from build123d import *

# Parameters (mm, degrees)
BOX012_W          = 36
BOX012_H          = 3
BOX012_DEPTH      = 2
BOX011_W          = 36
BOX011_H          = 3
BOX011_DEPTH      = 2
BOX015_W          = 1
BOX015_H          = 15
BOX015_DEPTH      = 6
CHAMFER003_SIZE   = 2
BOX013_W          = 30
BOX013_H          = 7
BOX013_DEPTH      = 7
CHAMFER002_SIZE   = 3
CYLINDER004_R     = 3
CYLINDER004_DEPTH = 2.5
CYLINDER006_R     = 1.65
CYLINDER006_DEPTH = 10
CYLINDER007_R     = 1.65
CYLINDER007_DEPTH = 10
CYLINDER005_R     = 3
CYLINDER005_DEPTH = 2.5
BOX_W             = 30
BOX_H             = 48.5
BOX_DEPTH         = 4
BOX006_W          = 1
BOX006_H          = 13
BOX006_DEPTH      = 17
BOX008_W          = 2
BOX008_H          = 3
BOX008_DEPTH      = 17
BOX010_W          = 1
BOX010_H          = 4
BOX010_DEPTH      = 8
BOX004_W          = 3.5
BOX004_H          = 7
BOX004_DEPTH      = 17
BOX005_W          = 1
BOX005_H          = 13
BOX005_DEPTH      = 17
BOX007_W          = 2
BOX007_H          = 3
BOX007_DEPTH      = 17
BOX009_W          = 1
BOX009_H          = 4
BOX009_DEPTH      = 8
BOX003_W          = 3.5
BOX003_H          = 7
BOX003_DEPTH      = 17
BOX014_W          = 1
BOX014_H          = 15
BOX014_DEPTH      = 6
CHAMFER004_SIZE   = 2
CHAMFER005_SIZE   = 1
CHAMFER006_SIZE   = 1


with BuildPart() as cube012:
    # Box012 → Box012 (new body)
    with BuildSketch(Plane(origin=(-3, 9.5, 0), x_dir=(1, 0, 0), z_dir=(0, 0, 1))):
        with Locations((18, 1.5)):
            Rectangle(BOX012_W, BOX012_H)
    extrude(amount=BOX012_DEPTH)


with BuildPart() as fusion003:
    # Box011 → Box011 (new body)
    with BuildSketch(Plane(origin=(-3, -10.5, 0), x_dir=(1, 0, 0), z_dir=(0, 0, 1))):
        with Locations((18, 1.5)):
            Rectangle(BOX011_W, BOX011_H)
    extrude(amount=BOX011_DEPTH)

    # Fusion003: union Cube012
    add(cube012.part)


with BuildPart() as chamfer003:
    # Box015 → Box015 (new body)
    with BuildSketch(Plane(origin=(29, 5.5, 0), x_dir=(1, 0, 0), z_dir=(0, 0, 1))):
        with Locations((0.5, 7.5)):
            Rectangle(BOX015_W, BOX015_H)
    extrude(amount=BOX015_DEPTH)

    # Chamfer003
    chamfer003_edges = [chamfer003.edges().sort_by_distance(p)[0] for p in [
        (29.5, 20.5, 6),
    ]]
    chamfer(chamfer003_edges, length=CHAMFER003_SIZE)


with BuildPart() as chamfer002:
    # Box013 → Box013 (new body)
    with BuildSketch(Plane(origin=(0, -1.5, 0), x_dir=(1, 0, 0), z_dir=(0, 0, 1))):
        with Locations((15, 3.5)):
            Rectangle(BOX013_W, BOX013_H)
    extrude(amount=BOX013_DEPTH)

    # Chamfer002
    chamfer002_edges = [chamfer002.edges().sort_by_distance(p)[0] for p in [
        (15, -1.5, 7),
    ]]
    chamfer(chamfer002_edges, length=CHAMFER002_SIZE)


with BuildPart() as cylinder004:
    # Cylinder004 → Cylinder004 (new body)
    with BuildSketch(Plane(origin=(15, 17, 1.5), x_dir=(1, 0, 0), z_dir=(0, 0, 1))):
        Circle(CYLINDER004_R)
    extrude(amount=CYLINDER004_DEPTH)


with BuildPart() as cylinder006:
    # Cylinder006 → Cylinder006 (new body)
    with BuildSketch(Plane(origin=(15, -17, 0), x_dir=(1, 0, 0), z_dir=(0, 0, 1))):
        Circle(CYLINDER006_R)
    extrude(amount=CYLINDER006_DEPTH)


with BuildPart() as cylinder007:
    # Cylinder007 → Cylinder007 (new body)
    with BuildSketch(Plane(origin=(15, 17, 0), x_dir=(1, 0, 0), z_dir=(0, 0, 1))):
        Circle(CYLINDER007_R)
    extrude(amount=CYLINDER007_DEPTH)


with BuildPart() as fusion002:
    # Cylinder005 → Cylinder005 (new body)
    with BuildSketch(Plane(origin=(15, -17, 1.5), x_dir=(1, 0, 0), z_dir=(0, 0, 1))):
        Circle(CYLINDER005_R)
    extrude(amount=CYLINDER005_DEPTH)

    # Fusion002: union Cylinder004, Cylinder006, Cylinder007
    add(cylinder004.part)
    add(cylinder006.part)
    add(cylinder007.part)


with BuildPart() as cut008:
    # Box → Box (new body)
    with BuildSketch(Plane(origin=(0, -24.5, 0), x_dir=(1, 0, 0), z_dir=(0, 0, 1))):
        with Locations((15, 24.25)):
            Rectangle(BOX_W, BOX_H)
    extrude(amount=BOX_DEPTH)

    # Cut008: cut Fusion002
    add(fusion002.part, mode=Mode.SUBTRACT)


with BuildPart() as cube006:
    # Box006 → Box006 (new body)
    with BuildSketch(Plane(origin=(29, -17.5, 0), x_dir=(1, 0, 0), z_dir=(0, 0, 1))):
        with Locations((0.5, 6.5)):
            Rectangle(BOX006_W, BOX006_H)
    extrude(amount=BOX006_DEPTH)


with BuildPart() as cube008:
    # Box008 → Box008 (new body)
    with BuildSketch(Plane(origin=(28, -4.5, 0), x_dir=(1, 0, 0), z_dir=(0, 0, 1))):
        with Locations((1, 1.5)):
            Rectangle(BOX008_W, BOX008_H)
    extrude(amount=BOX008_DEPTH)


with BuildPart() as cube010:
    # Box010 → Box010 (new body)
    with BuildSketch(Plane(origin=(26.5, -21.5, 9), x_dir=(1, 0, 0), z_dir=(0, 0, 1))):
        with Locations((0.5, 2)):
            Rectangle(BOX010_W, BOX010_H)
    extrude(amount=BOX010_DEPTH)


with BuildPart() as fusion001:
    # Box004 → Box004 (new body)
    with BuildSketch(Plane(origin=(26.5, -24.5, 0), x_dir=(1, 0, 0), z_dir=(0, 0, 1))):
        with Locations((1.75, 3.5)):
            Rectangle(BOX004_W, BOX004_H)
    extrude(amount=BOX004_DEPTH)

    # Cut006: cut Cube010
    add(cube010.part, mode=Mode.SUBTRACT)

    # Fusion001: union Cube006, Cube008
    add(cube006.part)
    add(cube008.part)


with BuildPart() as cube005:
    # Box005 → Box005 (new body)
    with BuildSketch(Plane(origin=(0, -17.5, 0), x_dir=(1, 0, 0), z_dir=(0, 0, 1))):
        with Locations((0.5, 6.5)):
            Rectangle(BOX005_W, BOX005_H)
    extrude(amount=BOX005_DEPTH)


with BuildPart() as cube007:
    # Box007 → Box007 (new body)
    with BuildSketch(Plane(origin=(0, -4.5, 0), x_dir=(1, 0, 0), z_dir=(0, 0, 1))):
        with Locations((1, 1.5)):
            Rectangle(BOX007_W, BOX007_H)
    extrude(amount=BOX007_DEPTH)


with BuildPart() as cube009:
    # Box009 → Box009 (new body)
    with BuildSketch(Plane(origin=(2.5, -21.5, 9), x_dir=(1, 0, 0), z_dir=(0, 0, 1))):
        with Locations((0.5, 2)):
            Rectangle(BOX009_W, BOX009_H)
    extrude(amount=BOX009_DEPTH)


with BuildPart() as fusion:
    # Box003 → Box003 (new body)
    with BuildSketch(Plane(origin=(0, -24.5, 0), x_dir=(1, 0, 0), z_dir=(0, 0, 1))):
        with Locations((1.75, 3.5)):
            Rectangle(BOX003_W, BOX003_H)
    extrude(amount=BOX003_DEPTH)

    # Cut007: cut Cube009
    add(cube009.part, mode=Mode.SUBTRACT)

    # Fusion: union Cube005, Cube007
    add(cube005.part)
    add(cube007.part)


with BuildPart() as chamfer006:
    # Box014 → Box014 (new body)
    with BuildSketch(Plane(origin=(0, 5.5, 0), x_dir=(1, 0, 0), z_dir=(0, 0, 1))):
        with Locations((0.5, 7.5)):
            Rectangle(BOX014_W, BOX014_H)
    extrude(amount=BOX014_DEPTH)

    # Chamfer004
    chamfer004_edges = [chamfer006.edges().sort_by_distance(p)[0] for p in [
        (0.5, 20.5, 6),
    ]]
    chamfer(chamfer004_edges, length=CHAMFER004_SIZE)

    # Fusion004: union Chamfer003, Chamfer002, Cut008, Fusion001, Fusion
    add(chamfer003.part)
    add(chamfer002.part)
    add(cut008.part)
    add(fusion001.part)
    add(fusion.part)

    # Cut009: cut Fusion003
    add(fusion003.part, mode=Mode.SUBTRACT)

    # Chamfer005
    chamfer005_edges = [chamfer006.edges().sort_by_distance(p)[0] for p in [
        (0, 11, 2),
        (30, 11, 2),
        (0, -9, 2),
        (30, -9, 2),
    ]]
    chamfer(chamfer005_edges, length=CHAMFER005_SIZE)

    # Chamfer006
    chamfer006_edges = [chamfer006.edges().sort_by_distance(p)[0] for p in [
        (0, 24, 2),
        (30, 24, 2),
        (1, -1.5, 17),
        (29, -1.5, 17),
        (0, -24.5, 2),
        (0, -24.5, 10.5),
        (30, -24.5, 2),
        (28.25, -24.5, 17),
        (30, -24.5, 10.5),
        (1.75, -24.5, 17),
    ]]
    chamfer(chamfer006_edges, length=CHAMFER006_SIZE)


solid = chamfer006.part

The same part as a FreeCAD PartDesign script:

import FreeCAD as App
import Part
import Sketcher
from FreeCAD import Vector
Q = App.Units.Quantity


def edges_at(feature, points):
    """Names of the edges that pass closest to the given points."""
    edges = feature.Shape.Edges
    near = lambda p: min(range(len(edges)), key=lambda i: edges[i].distToShape(Part.Vertex(*p))[0])
    return sorted({f"Edge{near(p) + 1}" for p in points})


def add_polygon(sketch, points):
    """Adds a closed chain of lines whose ends are joined by coincident constraints."""
    first, n = sketch.GeometryCount, len(points)
    for a, b in zip(points, points[1:] + points[:1]):
        sketch.addGeometry(Part.LineSegment(App.Vector(*a, 0), App.Vector(*b, 0)), False)
    for i in range(n):
        sketch.addConstraint(Sketcher.Constraint("Coincident", first + i, 2, first + (i + 1) % n, 1))

doc = App.newDocument("Part")
body = doc.addObject("PartDesign::Body", "Body")

# Sketch on XY plane
sketch1 = body.newObject("Sketcher::SketchObject", "Sketch")
sketch1.AttachmentSupport = (doc.getObject("XY_Plane"), [""])
sketch1.MapMode = "FlatFace"
add_polygon(sketch1, [(-3, 12.5), (-3, 9.5), (33, 9.5), (33, 12.5)])  # lines 0-3
sketch1.addConstraint([
    Sketcher.Constraint("Vertical", 0),
    Sketcher.Constraint("Horizontal", 1),
    Sketcher.Constraint("Vertical", 2),
    Sketcher.Constraint("Horizontal", 3),
    Sketcher.Constraint("DistanceX", 1, 1, 1, 2, Q("36 mm")),
    Sketcher.Constraint("DistanceY", 0, 2, 0, 1, Q("3 mm")),
    Sketcher.Constraint("DistanceX", 0, 2, -1, 1, Q("3 mm")),
    Sketcher.Constraint("DistanceY", -1, 1, 0, 2, Q("9.5 mm")),
])
pad1 = body.newObject("PartDesign::Pad", "Pad")
pad1.Profile = sketch1
pad1.Length = 2
body2 = doc.addObject("PartDesign::Body", "Body001")
body2.AllowCompound = True

# Sketch on XY plane
sketch2 = body2.newObject("Sketcher::SketchObject", "Sketch001")
sketch2.AttachmentSupport = (doc.getObject("XY_Plane001"), [""])
sketch2.MapMode = "FlatFace"
add_polygon(sketch2, [(-3, -7.5), (-3, -10.5), (33, -10.5), (33, -7.5)])  # lines 0-3
sketch2.addConstraint([
    Sketcher.Constraint("Vertical", 0),
    Sketcher.Constraint("Horizontal", 1),
    Sketcher.Constraint("Vertical", 2),
    Sketcher.Constraint("Horizontal", 3),
    Sketcher.Constraint("DistanceX", 1, 1, 1, 2, Q("36 mm")),
    Sketcher.Constraint("DistanceY", 0, 2, 0, 1, Q("3 mm")),
    Sketcher.Constraint("DistanceX", 0, 2, -1, 1, Q("3 mm")),
    Sketcher.Constraint("DistanceY", 0, 2, -1, 1, Q("10.5 mm")),
])
pad2 = body2.newObject("PartDesign::Pad", "Pad001")
pad2.Profile = sketch2
pad2.Length = 2
doc.recompute()

boolean = body2.newObject("PartDesign::Boolean", "Boolean")
boolean.Type = "Fuse"
boolean.addObjects([body])
body3 = doc.addObject("PartDesign::Body", "Body002")

# Sketch on XY plane
sketch3 = body3.newObject("Sketcher::SketchObject", "Sketch002")
sketch3.AttachmentSupport = (doc.getObject("XY_Plane002"), [""])
sketch3.MapMode = "FlatFace"
add_polygon(sketch3, [(29, 20.5), (29, 5.5), (30, 5.5), (30, 20.5)])  # lines 0-3
sketch3.addConstraint([
    Sketcher.Constraint("Vertical", 0),
    Sketcher.Constraint("Horizontal", 1),
    Sketcher.Constraint("Vertical", 2),
    Sketcher.Constraint("Horizontal", 3),
    Sketcher.Constraint("DistanceX", 1, 1, 1, 2, Q("1 mm")),
    Sketcher.Constraint("DistanceY", 0, 2, 0, 1, Q("15 mm")),
    Sketcher.Constraint("DistanceX", -1, 1, 0, 2, Q("29 mm")),
    Sketcher.Constraint("DistanceY", -1, 1, 0, 2, Q("5.5 mm")),
])
pad3 = body3.newObject("PartDesign::Pad", "Pad002")
pad3.Profile = sketch3
pad3.Length = 6
doc.recompute()

chamfer = body3.newObject("PartDesign::Chamfer", "Chamfer")
chamfer.Base = (pad3, edges_at(pad3, [(29.5, 20.5, 6)]))
chamfer.Size = 2
body4 = doc.addObject("PartDesign::Body", "Body003")

# Sketch on XY plane
sketch4 = body4.newObject("Sketcher::SketchObject", "Sketch003")
sketch4.AttachmentSupport = (doc.getObject("XY_Plane003"), [""])
sketch4.MapMode = "FlatFace"
add_polygon(sketch4, [(0, 6), (0, -2), (30, -2), (30, 6)])  # lines 0-3
sketch4.addConstraint([
    Sketcher.Constraint("Vertical", 0),
    Sketcher.Constraint("Horizontal", 1),
    Sketcher.Constraint("Vertical", 2),
    Sketcher.Constraint("Horizontal", 3),
    Sketcher.Constraint("PointOnObject", 0, 2, -2),
    Sketcher.Constraint("DistanceX", 1, 1, 1, 2, Q("30 mm")),
    Sketcher.Constraint("DistanceY", 0, 2, 0, 1, Q("7 mm")),
    Sketcher.Constraint("DistanceY", 0, 2, -1, 1, Q("1.5 mm")),
])
pad4 = body4.newObject("PartDesign::Pad", "Pad003")
pad4.Profile = sketch4
pad4.Length = 7
doc.recompute()

chamfer2 = body4.newObject("PartDesign::Chamfer", "Chamfer001")
chamfer2.Base = (pad4, edges_at(pad4, [(15, -1.5, 7)]))
chamfer2.Size = 3
body5 = doc.addObject("PartDesign::Body", "Body004")

# Sketch on XY plane
sketch5 = body5.newObject("Sketcher::SketchObject", "Sketch004")
sketch5.AttachmentSupport = (doc.getObject("XY_Plane004"), [""])
sketch5.MapMode = "FlatFace"
sketch5.AttachmentOffset = App.Placement(Vector(0, 0, 1.5), App.Rotation())
sketch5.addGeometry(Part.Circle(Vector(15, 17, 0), Vector(0, 0, 1), 3), False)
sketch5.addConstraint([
    Sketcher.Constraint("Diameter", 0, Q("6 mm")),
    Sketcher.Constraint("DistanceX", -1, 1, 0, 3, Q("15 mm")),
    Sketcher.Constraint("DistanceY", -1, 1, 0, 3, Q("17 mm")),
])
pad5 = body5.newObject("PartDesign::Pad", "Pad004")
pad5.Profile = sketch5
pad5.Length = 2.5
body6 = doc.addObject("PartDesign::Body", "Body005")

# Sketch on XY plane
sketch6 = body6.newObject("Sketcher::SketchObject", "Sketch005")
sketch6.AttachmentSupport = (doc.getObject("XY_Plane005"), [""])
sketch6.MapMode = "FlatFace"
sketch6.addGeometry(Part.Circle(Vector(15, -17, 0), Vector(0, 0, 1), 1.6), False)
sketch6.addConstraint([
    Sketcher.Constraint("Diameter", 0, Q("3.3 mm")),
    Sketcher.Constraint("DistanceX", -1, 1, 0, 3, Q("15 mm")),
    Sketcher.Constraint("DistanceY", 0, 3, -1, 1, Q("17 mm")),
])
pad6 = body6.newObject("PartDesign::Pad", "Pad005")
pad6.Profile = sketch6
pad6.Length = 10
body7 = doc.addObject("PartDesign::Body", "Body006")

# Sketch on XY plane
sketch7 = body7.newObject("Sketcher::SketchObject", "Sketch006")
sketch7.AttachmentSupport = (doc.getObject("XY_Plane006"), [""])
sketch7.MapMode = "FlatFace"
sketch7.addGeometry(Part.Circle(Vector(15, 17, 0), Vector(0, 0, 1), 1.6), False)
sketch7.addConstraint([
    Sketcher.Constraint("Diameter", 0, Q("3.3 mm")),
    Sketcher.Constraint("DistanceX", -1, 1, 0, 3, Q("15 mm")),
    Sketcher.Constraint("DistanceY", -1, 1, 0, 3, Q("17 mm")),
])
pad7 = body7.newObject("PartDesign::Pad", "Pad006")
pad7.Profile = sketch7
pad7.Length = 10
body8 = doc.addObject("PartDesign::Body", "Body007")
body8.AllowCompound = True

# Sketch on XY plane
sketch8 = body8.newObject("Sketcher::SketchObject", "Sketch007")
sketch8.AttachmentSupport = (doc.getObject("XY_Plane007"), [""])
sketch8.MapMode = "FlatFace"
sketch8.AttachmentOffset = App.Placement(Vector(0, 0, 1.5), App.Rotation())
sketch8.addGeometry(Part.Circle(Vector(15, -17, 0), Vector(0, 0, 1), 3), False)
sketch8.addConstraint([
    Sketcher.Constraint("Diameter", 0, Q("6 mm")),
    Sketcher.Constraint("DistanceX", -1, 1, 0, 3, Q("15 mm")),
    Sketcher.Constraint("DistanceY", 0, 3, -1, 1, Q("17 mm")),
])
pad8 = body8.newObject("PartDesign::Pad", "Pad007")
pad8.Profile = sketch8
pad8.Length = 2.5
doc.recompute()

boolean2 = body8.newObject("PartDesign::Boolean", "Boolean001")
boolean2.Type = "Fuse"
boolean2.addObjects([body5])
doc.recompute()

boolean3 = body8.newObject("PartDesign::Boolean", "Boolean002")
boolean3.Type = "Fuse"
boolean3.addObjects([body6])
doc.recompute()

boolean4 = body8.newObject("PartDesign::Boolean", "Boolean003")
boolean4.Type = "Fuse"
boolean4.addObjects([body7])
body9 = doc.addObject("PartDesign::Body", "Body008")

# Sketch on XY plane
sketch9 = body9.newObject("Sketcher::SketchObject", "Sketch008")
sketch9.AttachmentSupport = (doc.getObject("XY_Plane008"), [""])
sketch9.MapMode = "FlatFace"
add_polygon(sketch9, [(0, 24), (0, -24), (30, -24), (30, 24)])  # lines 0-3
sketch9.addConstraint([
    Sketcher.Constraint("Vertical", 0),
    Sketcher.Constraint("Horizontal", 1),
    Sketcher.Constraint("Vertical", 2),
    Sketcher.Constraint("Horizontal", 3),
    Sketcher.Constraint("PointOnObject", 0, 2, -2),
    Sketcher.Constraint("DistanceX", 1, 1, 1, 2, Q("30 mm")),
    Sketcher.Constraint("DistanceY", 0, 2, 0, 1, Q("48.5 mm")),
    Sketcher.Constraint("DistanceY", -1, 1, 2, 2, Q("24 mm")),
])
pad9 = body9.newObject("PartDesign::Pad", "Pad008")
pad9.Profile = sketch9
pad9.Length = 4
doc.recompute()

boolean5 = body9.newObject("PartDesign::Boolean", "Boolean004")
boolean5.Type = "Cut"
boolean5.addObjects([body8])
body10 = doc.addObject("PartDesign::Body", "Body009")

# Sketch on XY plane
sketch10 = body10.newObject("Sketcher::SketchObject", "Sketch009")
sketch10.AttachmentSupport = (doc.getObject("XY_Plane009"), [""])
sketch10.MapMode = "FlatFace"
add_polygon(sketch10, [(29, -4.5), (29, -17.5), (30, -17.5), (30, -4.5)])  # lines 0-3
sketch10.addConstraint([
    Sketcher.Constraint("Vertical", 0),
    Sketcher.Constraint("Horizontal", 1),
    Sketcher.Constraint("Vertical", 2),
    Sketcher.Constraint("Horizontal", 3),
    Sketcher.Constraint("DistanceX", 1, 1, 1, 2, Q("1 mm")),
    Sketcher.Constraint("DistanceY", 0, 2, 0, 1, Q("13 mm")),
    Sketcher.Constraint("DistanceX", -1, 1, 0, 2, Q("29 mm")),
    Sketcher.Constraint("DistanceY", 0, 2, -1, 1, Q("17.5 mm")),
])
pad10 = body10.newObject("PartDesign::Pad", "Pad009")
pad10.Profile = sketch10
pad10.Length = 17
body11 = doc.addObject("PartDesign::Body", "Body010")

# Sketch on XY plane
sketch11 = body11.newObject("Sketcher::SketchObject", "Sketch010")
sketch11.AttachmentSupport = (doc.getObject("XY_Plane010"), [""])
sketch11.MapMode = "FlatFace"
add_polygon(sketch11, [(28, -1.5), (28, -4.5), (30, -4.5), (30, -1.5)])  # lines 0-3
sketch11.addConstraint([
    Sketcher.Constraint("Vertical", 0),
    Sketcher.Constraint("Horizontal", 1),
    Sketcher.Constraint("Vertical", 2),
    Sketcher.Constraint("Horizontal", 3),
    Sketcher.Constraint("DistanceX", 1, 1, 1, 2, Q("2 mm")),
    Sketcher.Constraint("DistanceY", 0, 2, 0, 1, Q("3 mm")),
    Sketcher.Constraint("DistanceX", -1, 1, 0, 2, Q("28 mm")),
    Sketcher.Constraint("DistanceY", 0, 2, -1, 1, Q("4.5 mm")),
])
pad11 = body11.newObject("PartDesign::Pad", "Pad010")
pad11.Profile = sketch11
pad11.Length = 17
body12 = doc.addObject("PartDesign::Body", "Body011")

# Sketch on XY plane
sketch12 = body12.newObject("Sketcher::SketchObject", "Sketch011")
sketch12.AttachmentSupport = (doc.getObject("XY_Plane011"), [""])
sketch12.MapMode = "FlatFace"
sketch12.AttachmentOffset = App.Placement(Vector(0, 0, 9), App.Rotation())
add_polygon(sketch12, [(26.5, -17.5), (26.5, -21.5), (27.5, -21.5), (27.5, -17.5)])  # lines 0-3
sketch12.addConstraint([
    Sketcher.Constraint("Vertical", 0),
    Sketcher.Constraint("Horizontal", 1),
    Sketcher.Constraint("Vertical", 2),
    Sketcher.Constraint("Horizontal", 3),
    Sketcher.Constraint("DistanceX", 1, 1, 1, 2, Q("1 mm")),
    Sketcher.Constraint("DistanceY", 0, 2, 0, 1, Q("4 mm")),
    Sketcher.Constraint("DistanceX", -1, 1, 0, 2, Q("26.5 mm")),
    Sketcher.Constraint("DistanceY", 0, 2, -1, 1, Q("21.5 mm")),
])
pad12 = body12.newObject("PartDesign::Pad", "Pad011")
pad12.Profile = sketch12
pad12.Length = 8
body13 = doc.addObject("PartDesign::Body", "Body012")

# Sketch on XY plane
sketch13 = body13.newObject("Sketcher::SketchObject", "Sketch012")
sketch13.AttachmentSupport = (doc.getObject("XY_Plane012"), [""])
sketch13.MapMode = "FlatFace"
add_polygon(sketch13, [(26.5, -17.5), (26.5, -24.5), (30, -24.5), (30, -17.5)])  # lines 0-3
sketch13.addConstraint([
    Sketcher.Constraint("Vertical", 0),
    Sketcher.Constraint("Horizontal", 1),
    Sketcher.Constraint("Vertical", 2),
    Sketcher.Constraint("Horizontal", 3),
    Sketcher.Constraint("DistanceY", 0, 2, 0, 1, Q("7 mm")),
    Sketcher.Constraint("DistanceX", 1, 1, 1, 2, Q("3.5 mm")),
    Sketcher.Constraint("DistanceX", -1, 1, 1, 2, Q("30 mm")),
    Sketcher.Constraint("DistanceY", 0, 2, -1, 1, Q("24.5 mm")),
])
pad13 = body13.newObject("PartDesign::Pad", "Pad012")
pad13.Profile = sketch13
pad13.Length = 17
doc.recompute()

boolean6 = body13.newObject("PartDesign::Boolean", "Boolean005")
boolean6.Type = "Cut"
boolean6.addObjects([body12])
doc.recompute()

boolean7 = body13.newObject("PartDesign::Boolean", "Boolean006")
boolean7.Type = "Fuse"
boolean7.addObjects([body10])
doc.recompute()

boolean8 = body13.newObject("PartDesign::Boolean", "Boolean007")
boolean8.Type = "Fuse"
boolean8.addObjects([body11])
body14 = doc.addObject("PartDesign::Body", "Body013")

# Sketch on XY plane
sketch14 = body14.newObject("Sketcher::SketchObject", "Sketch013")
sketch14.AttachmentSupport = (doc.getObject("XY_Plane013"), [""])
sketch14.MapMode = "FlatFace"
add_polygon(sketch14, [(0, -4.5), (0, -17.5), (1, -17.5), (1, -4.5)])  # lines 0-3
sketch14.addConstraint([
    Sketcher.Constraint("Vertical", 0),
    Sketcher.Constraint("Horizontal", 1),
    Sketcher.Constraint("Vertical", 2),
    Sketcher.Constraint("Horizontal", 3),
    Sketcher.Constraint("PointOnObject", 0, 2, -2),
    Sketcher.Constraint("DistanceX", 1, 1, 1, 2, Q("1 mm")),
    Sketcher.Constraint("DistanceY", 0, 2, 0, 1, Q("13 mm")),
    Sketcher.Constraint("DistanceY", 0, 2, -1, 1, Q("17.5 mm")),
])
pad14 = body14.newObject("PartDesign::Pad", "Pad013")
pad14.Profile = sketch14
pad14.Length = 17
body15 = doc.addObject("PartDesign::Body", "Body014")

# Sketch on XY plane
sketch15 = body15.newObject("Sketcher::SketchObject", "Sketch014")
sketch15.AttachmentSupport = (doc.getObject("XY_Plane014"), [""])
sketch15.MapMode = "FlatFace"
add_polygon(sketch15, [(0, -1.5), (0, -4.5), (2, -4.5), (2, -1.5)])  # lines 0-3
sketch15.addConstraint([
    Sketcher.Constraint("Vertical", 0),
    Sketcher.Constraint("Horizontal", 1),
    Sketcher.Constraint("Vertical", 2),
    Sketcher.Constraint("Horizontal", 3),
    Sketcher.Constraint("PointOnObject", 0, 2, -2),
    Sketcher.Constraint("DistanceX", 1, 1, 1, 2, Q("2 mm")),
    Sketcher.Constraint("DistanceY", 0, 2, 0, 1, Q("3 mm")),
    Sketcher.Constraint("DistanceY", 0, 2, -1, 1, Q("4.5 mm")),
])
pad15 = body15.newObject("PartDesign::Pad", "Pad014")
pad15.Profile = sketch15
pad15.Length = 17
body16 = doc.addObject("PartDesign::Body", "Body015")

# Sketch on XY plane
sketch16 = body16.newObject("Sketcher::SketchObject", "Sketch015")
sketch16.AttachmentSupport = (doc.getObject("XY_Plane015"), [""])
sketch16.MapMode = "FlatFace"
sketch16.AttachmentOffset = App.Placement(Vector(0, 0, 9), App.Rotation())
add_polygon(sketch16, [(2.5, -17.5), (2.5, -21.5), (3.5, -21.5), (3.5, -17.5)])  # lines 0-3
sketch16.addConstraint([
    Sketcher.Constraint("Vertical", 0),
    Sketcher.Constraint("Horizontal", 1),
    Sketcher.Constraint("Vertical", 2),
    Sketcher.Constraint("Horizontal", 3),
    Sketcher.Constraint("DistanceX", 1, 1, 1, 2, Q("1 mm")),
    Sketcher.Constraint("DistanceY", 0, 2, 0, 1, Q("4 mm")),
    Sketcher.Constraint("DistanceX", -1, 1, 0, 2, Q("2.5 mm")),
    Sketcher.Constraint("DistanceY", 0, 2, -1, 1, Q("21.5 mm")),
])
pad16 = body16.newObject("PartDesign::Pad", "Pad015")
pad16.Profile = sketch16
pad16.Length = 8
body17 = doc.addObject("PartDesign::Body", "Body016")

# Sketch on XY plane
sketch17 = body17.newObject("Sketcher::SketchObject", "Sketch016")
sketch17.AttachmentSupport = (doc.getObject("XY_Plane016"), [""])
sketch17.MapMode = "FlatFace"
add_polygon(sketch17, [(0, -17.5), (0, -24.5), (3.5, -24.5), (3.5, -17.5)])  # lines 0-3
sketch17.addConstraint([
    Sketcher.Constraint("Vertical", 0),
    Sketcher.Constraint("Horizontal", 1),
    Sketcher.Constraint("Vertical", 2),
    Sketcher.Constraint("Horizontal", 3),
    Sketcher.Constraint("PointOnObject", 0, 2, -2),
    Sketcher.Constraint("DistanceY", 0, 2, 0, 1, Q("7 mm")),
    Sketcher.Constraint("DistanceX", 1, 1, 1, 2, Q("3.5 mm")),
    Sketcher.Constraint("DistanceY", 0, 2, -1, 1, Q("24.5 mm")),
])
pad17 = body17.newObject("PartDesign::Pad", "Pad016")
pad17.Profile = sketch17
pad17.Length = 17
doc.recompute()

boolean9 = body17.newObject("PartDesign::Boolean", "Boolean008")
boolean9.Type = "Cut"
boolean9.addObjects([body16])
doc.recompute()

boolean10 = body17.newObject("PartDesign::Boolean", "Boolean009")
boolean10.Type = "Fuse"
boolean10.addObjects([body14])
doc.recompute()

boolean11 = body17.newObject("PartDesign::Boolean", "Boolean010")
boolean11.Type = "Fuse"
boolean11.addObjects([body15])
body18 = doc.addObject("PartDesign::Body", "Body017")
body18.AllowCompound = True

# Sketch on XY plane
sketch18 = body18.newObject("Sketcher::SketchObject", "Sketch017")
sketch18.AttachmentSupport = (doc.getObject("XY_Plane017"), [""])
sketch18.MapMode = "FlatFace"
add_polygon(sketch18, [(0, 20.5), (0, 5.5), (1, 5.5), (1, 20.5)])  # lines 0-3
sketch18.addConstraint([
    Sketcher.Constraint("Vertical", 0),
    Sketcher.Constraint("Horizontal", 1),
    Sketcher.Constraint("Vertical", 2),
    Sketcher.Constraint("Horizontal", 3),
    Sketcher.Constraint("PointOnObject", 0, 2, -2),
    Sketcher.Constraint("DistanceX", 1, 1, 1, 2, Q("1 mm")),
    Sketcher.Constraint("DistanceY", 0, 2, 0, 1, Q("15 mm")),
    Sketcher.Constraint("DistanceY", -1, 1, 0, 2, Q("5.5 mm")),
])
pad18 = body18.newObject("PartDesign::Pad", "Pad017")
pad18.Profile = sketch18
pad18.Length = 6
doc.recompute()

chamfer3 = body18.newObject("PartDesign::Chamfer", "Chamfer002")
chamfer3.Base = (pad18, edges_at(pad18, [(0.5, 20.5, 6)]))
chamfer3.Size = 2
doc.recompute()

boolean12 = body18.newObject("PartDesign::Boolean", "Boolean011")
boolean12.Type = "Fuse"
boolean12.addObjects([body3])
doc.recompute()

boolean13 = body18.newObject("PartDesign::Boolean", "Boolean012")
boolean13.Type = "Fuse"
boolean13.addObjects([body4])
doc.recompute()

boolean14 = body18.newObject("PartDesign::Boolean", "Boolean013")
boolean14.Type = "Fuse"
boolean14.addObjects([body9])
doc.recompute()

boolean15 = body18.newObject("PartDesign::Boolean", "Boolean014")
boolean15.Type = "Fuse"
boolean15.addObjects([body13])
doc.recompute()

boolean16 = body18.newObject("PartDesign::Boolean", "Boolean015")
boolean16.Type = "Fuse"
boolean16.addObjects([body17])
doc.recompute()

boolean17 = body18.newObject("PartDesign::Boolean", "Boolean016")
boolean17.Type = "Cut"
boolean17.addObjects([body2])
doc.recompute()

chamfer4 = body18.newObject("PartDesign::Chamfer", "Chamfer003")
chamfer4.Base = (boolean17, edges_at(boolean17, [
    (0, 11, 2),
    (30, 11, 2),
    (0, -9, 2),
    (30, -9, 2),
]))
chamfer4.Size = 1
doc.recompute()

chamfer5 = body18.newObject("PartDesign::Chamfer", "Chamfer004")
chamfer5.Base = (chamfer4, edges_at(chamfer4, [
    (0, 24, 2),
    (30, 24, 2),
    (1, -1.5, 17),
    (29, -1.5, 17),
    (0, -24.5, 8.5),
    (0, -24.5, 8.5),
    (30, -24.5, 8.5),
    (28.25, -24.5, 17),
    (30, -24.5, 8.5),
    (1.75, -24.5, 17),
]))
chamfer5.Size = 1

doc.recompute()
